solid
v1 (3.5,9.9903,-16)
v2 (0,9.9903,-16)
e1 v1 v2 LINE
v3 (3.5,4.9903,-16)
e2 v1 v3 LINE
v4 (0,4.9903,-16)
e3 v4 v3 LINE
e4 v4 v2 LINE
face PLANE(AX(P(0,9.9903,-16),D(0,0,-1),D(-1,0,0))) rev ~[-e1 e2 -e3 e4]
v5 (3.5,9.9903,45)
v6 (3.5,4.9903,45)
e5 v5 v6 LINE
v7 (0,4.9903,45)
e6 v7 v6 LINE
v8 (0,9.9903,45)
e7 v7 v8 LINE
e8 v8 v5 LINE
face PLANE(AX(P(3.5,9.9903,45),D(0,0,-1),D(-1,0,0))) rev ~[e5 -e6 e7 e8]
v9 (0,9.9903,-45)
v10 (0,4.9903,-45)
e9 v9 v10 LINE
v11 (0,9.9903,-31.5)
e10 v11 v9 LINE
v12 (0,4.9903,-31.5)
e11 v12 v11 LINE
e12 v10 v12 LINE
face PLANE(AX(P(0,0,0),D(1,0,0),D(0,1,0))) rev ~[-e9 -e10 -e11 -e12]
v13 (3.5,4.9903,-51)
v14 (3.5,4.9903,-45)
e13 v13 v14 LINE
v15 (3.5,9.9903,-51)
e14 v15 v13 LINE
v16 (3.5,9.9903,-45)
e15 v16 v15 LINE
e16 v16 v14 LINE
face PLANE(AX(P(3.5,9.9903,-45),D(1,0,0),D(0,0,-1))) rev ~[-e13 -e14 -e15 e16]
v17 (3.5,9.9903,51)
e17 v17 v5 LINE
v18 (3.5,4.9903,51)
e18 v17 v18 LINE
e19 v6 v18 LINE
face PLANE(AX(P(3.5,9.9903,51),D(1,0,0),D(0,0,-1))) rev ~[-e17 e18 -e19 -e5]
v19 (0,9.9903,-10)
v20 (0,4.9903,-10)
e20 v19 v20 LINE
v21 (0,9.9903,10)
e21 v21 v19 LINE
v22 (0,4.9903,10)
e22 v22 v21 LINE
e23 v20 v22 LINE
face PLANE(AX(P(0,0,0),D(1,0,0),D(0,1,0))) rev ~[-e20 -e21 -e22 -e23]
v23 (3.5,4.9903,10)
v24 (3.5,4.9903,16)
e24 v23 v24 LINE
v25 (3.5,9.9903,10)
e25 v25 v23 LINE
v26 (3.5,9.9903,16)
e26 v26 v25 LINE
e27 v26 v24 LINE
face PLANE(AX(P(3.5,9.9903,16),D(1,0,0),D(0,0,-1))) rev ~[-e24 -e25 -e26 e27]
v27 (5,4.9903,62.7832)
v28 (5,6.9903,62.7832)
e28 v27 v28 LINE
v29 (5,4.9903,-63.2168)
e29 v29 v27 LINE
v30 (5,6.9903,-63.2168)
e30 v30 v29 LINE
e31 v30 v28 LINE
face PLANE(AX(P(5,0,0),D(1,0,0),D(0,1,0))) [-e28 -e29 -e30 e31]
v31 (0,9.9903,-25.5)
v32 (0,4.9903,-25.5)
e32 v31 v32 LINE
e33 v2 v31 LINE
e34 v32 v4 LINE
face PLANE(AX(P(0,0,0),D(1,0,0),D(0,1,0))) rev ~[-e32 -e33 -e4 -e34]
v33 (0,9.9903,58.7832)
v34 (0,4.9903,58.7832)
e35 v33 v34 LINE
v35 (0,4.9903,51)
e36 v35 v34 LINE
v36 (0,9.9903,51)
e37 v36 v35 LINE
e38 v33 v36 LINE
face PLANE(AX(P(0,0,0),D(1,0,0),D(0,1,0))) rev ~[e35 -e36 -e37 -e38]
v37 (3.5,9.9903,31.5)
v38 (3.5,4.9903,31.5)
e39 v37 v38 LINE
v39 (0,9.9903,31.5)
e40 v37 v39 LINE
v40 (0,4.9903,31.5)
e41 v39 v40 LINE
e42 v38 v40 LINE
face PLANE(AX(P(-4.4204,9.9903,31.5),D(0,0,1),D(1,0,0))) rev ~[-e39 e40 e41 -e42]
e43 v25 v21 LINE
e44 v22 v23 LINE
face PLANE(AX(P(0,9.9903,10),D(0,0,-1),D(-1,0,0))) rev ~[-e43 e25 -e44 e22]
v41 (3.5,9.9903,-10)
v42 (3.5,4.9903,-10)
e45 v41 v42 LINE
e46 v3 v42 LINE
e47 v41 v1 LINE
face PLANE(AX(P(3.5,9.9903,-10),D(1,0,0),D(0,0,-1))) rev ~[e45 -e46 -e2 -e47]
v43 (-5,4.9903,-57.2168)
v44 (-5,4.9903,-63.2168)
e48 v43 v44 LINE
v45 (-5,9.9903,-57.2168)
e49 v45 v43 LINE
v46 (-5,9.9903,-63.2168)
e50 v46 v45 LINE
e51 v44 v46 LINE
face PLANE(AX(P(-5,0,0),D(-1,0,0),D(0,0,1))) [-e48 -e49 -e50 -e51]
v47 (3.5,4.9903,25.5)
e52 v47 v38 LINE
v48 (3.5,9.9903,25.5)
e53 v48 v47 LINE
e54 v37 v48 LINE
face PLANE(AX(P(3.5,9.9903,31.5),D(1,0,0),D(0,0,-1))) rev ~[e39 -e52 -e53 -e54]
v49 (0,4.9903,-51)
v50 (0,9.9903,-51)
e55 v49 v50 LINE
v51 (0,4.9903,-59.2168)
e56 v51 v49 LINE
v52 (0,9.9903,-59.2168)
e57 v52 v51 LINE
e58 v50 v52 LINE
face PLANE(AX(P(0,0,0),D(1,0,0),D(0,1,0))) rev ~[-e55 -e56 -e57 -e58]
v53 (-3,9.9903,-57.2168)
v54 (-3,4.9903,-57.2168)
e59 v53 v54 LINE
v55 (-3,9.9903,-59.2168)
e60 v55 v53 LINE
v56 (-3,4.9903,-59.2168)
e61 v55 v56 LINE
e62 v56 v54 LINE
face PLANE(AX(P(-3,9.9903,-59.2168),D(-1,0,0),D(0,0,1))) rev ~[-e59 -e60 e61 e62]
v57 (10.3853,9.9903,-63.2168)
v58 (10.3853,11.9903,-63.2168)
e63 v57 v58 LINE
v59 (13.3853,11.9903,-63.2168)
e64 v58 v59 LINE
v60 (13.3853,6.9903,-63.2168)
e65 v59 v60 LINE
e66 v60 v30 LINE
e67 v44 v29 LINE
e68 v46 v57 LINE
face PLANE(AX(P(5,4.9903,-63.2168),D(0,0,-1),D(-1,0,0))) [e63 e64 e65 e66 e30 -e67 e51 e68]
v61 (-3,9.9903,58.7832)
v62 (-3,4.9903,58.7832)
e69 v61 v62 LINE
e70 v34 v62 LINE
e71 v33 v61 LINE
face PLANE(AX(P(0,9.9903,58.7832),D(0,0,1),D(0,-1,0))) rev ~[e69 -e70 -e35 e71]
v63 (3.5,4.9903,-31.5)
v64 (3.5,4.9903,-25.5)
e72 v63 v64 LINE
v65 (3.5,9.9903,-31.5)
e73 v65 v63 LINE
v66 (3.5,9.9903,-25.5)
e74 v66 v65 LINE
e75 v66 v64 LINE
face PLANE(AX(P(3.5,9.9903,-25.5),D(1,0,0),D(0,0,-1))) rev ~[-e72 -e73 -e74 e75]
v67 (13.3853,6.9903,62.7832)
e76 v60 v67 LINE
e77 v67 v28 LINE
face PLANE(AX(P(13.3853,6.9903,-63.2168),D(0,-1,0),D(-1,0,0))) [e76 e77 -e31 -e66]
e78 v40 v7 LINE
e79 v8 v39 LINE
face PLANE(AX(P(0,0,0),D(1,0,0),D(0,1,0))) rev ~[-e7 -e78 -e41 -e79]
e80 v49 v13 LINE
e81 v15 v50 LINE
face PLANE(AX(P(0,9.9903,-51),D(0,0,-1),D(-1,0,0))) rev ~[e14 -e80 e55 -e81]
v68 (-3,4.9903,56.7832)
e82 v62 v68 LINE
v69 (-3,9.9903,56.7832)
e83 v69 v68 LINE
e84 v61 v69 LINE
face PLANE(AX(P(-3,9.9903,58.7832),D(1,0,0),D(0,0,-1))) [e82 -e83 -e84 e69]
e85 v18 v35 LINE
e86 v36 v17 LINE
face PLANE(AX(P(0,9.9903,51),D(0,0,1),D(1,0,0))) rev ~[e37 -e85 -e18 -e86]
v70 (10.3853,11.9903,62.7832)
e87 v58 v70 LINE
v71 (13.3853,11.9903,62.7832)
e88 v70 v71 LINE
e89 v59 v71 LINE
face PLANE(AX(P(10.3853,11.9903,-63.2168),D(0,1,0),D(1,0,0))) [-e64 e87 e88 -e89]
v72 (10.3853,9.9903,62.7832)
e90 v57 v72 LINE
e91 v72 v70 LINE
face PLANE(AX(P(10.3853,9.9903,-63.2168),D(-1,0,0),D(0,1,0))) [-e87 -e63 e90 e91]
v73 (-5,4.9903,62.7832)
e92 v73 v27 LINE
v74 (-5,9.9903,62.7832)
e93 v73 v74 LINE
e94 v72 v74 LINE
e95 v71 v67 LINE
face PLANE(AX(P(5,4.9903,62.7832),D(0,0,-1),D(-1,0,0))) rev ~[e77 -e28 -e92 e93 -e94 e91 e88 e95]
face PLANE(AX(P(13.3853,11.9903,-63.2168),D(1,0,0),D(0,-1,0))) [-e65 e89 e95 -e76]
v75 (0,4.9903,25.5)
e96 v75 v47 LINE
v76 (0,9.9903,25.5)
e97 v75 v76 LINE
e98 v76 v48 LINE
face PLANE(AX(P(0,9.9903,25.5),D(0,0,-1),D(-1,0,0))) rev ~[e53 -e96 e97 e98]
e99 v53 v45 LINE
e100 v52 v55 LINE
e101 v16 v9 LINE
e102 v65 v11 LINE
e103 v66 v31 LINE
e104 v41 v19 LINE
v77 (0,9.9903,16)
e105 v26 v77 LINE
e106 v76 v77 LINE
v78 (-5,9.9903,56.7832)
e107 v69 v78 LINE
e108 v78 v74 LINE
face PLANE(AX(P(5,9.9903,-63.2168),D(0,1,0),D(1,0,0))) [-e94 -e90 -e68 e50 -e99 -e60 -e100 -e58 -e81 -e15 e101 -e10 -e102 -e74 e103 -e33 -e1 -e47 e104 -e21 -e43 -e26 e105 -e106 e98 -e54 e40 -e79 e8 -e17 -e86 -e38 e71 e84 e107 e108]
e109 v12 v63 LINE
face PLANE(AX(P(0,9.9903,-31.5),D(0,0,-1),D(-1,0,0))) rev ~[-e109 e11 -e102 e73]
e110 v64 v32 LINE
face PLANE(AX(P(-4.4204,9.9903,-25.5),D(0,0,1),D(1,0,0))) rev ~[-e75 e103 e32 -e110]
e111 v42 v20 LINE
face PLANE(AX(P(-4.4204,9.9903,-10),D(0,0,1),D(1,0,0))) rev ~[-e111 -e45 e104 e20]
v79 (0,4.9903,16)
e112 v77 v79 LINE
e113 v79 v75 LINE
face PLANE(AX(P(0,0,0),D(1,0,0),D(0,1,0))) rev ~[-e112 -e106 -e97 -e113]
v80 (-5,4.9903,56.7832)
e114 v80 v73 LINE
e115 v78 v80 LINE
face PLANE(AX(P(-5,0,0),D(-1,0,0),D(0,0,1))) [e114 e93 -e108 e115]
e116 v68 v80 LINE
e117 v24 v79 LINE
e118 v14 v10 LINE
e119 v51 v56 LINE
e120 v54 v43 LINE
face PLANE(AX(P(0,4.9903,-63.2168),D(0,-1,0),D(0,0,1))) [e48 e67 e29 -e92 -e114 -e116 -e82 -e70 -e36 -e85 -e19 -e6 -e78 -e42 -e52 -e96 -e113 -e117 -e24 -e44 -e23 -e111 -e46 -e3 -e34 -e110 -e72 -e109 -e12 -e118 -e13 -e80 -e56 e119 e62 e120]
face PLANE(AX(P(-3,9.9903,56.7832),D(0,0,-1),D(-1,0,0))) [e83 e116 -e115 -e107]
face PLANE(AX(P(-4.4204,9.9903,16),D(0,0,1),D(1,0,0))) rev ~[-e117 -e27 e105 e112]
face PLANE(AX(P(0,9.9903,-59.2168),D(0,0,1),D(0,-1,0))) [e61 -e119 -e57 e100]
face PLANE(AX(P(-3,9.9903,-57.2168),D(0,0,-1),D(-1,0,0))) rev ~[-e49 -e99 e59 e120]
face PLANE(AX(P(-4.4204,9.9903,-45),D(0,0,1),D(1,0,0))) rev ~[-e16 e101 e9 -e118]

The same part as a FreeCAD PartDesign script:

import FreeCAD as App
import Part
import Sketcher

V = App.Vector

doc = App.newDocument("Part")
body = doc.addObject("PartDesign::Body", "Body")

sketch1 = body.newObject("Sketcher::SketchObject", "Sketch")
sketch1.AttachmentSupport = (doc.getObject("YZ_Plane"), [""])
sketch1.MapMode = "FlatFace"
sketch1.addGeometry([
    Part.LineSegment(V(10, 62.8, 0), V(5, 62.8, 0)),
    Part.LineSegment(V(5, 62.8, 0), V(5, -63.2, 0)),
    Part.LineSegment(V(5, -63.2, 0), V(10, -63.2, 0)),
    Part.LineSegment(V(10, -63.2, 0), V(10, 62.8, 0)),
], False)
sketch1.addConstraint([
    Sketcher.Constraint("Coincident", 0, 2, 1, 1),
    Sketcher.Constraint("Coincident", 1, 2, 2, 1),
    Sketcher.Constraint("Coincident", 2, 2, 3, 1),
    Sketcher.Constraint("Coincident", 3, 2, 0, 1),
    Sketcher.Constraint("Horizontal", 0),
    Sketcher.Constraint("Vertical", 1),
    Sketcher.Constraint("Horizontal", 2),
    Sketcher.Constraint("Vertical", 3),
    Sketcher.Constraint("DistanceX", 0, 2, 0, 1, 5.0),
    Sketcher.Constraint("DistanceY", 1, 2, 1, 1, 126.0),
    Sketcher.Constraint("DistanceX", -1, 1, 0, 2, 4.9903),
    Sketcher.Constraint("DistanceY", -1, 1, 0, 2, 62.7832),
])
pad1 = body.newObject("PartDesign::Pad", "Pad")
pad1.Profile = sketch1
pad1.Length = 5

sketch2 = body.newObject("Sketcher::SketchObject", "Sketch001")
sketch2.AttachmentSupport = (doc.getObject("YZ_Plane"), [""])
sketch2.MapMode = "FlatFace"
sketch2.addGeometry([
    Part.LineSegment(V(10, -59.2, 0), V(10, -63.2, 0)),
    Part.LineSegment(V(10, -63.2, 0), V(5, -63.2, 0)),
    Part.LineSegment(V(5, -63.2, 0), V(5, -59.2, 0)),
    Part.LineSegment(V(5, -59.2, 0), V(10, -59.2, 0)),
    Part.LineSegment(V(10, 62.8, 0), V(10, 58.8, 0)),
    Part.LineSegment(V(10, 58.8, 0), V(5, 58.8, 0)),
    Part.LineSegment(V(5, 58.8, 0), V(5, 62.8, 0)),
    Part.LineSegment(V(5, 62.8, 0), V(10, 62.8, 0)),
], False)
sketch2.addConstraint([
    Sketcher.Constraint("Coincident", 0, 2, 1, 1),
    Sketcher.Constraint("Coincident", 1, 2, 2, 1),
    Sketcher.Constraint("Coincident", 2, 2, 3, 1),
    Sketcher.Constraint("Coincident", 3, 2, 0, 1),
    Sketcher.Constraint("Coincident", 4, 2, 5, 1),
    Sketcher.Constraint("Coincident", 5, 2, 6, 1),
    Sketcher.Constraint("Coincident", 6, 2, 7, 1),
    Sketcher.Constraint("Coincident", 7, 2, 4, 1),
    Sketcher.Constraint("Vertical", 0),
    Sketcher.Constraint("Horizontal", 1),
    Sketcher.Constraint("Vertical", 2),
    Sketcher.Constraint("Horizontal", 3),
    Sketcher.Constraint("Vertical", 4),
    Sketcher.Constraint("Horizontal", 5),
    Sketcher.Constraint("Vertical", 6),
    Sketcher.Constraint("Horizontal", 7),
    Sketcher.Constraint("Vertical", 3, 2, 4, 2),
    Sketcher.Constraint("Vertical", 2, 2, 5, 2),
    Sketcher.Constraint("Equal", 2, 4),
    Sketcher.Constraint("DistanceY", 0, 2, 0, 1, 4.0),
    Sketcher.Constraint("DistanceX", 1, 2, 1, 1, 5.0),
    Sketcher.Constraint("DistanceY", 3, 2, 4, 2, 118.0),
    Sketcher.Constraint("DistanceX", -1, 1, 0, 2, 9.9903),
    Sketcher.Constraint("DistanceY", 0, 2, -1, 1, 63.2168),
])
pad2 = body.newObject("PartDesign::Pad", "Pad001")
pad2.Profile = sketch2
pad2.Length = 5
pad2.Reversed = True

sketch3 = body.newObject("Sketcher::SketchObject", "Sketch002")
sketch3.AttachmentSupport = (doc.getObject("XZ_Plane"), [""])
sketch3.MapMode = "FlatFace"
sketch3.AttachmentOffset = App.Placement(V(0, 0, -9.9903), App.Rotation())
sketch3.addGeometry([
    Part.LineSegment(V(-5, 56.8, 0), V(-5, 58.8, 0)),
    Part.LineSegment(V(-5, 58.8, 0), V(-3, 58.8, 0)),
    Part.LineSegment(V(-3, 58.8, 0), V(-3, 56.8, 0)),
    Part.LineSegment(V(-3, 56.8, 0), V(-5, 56.8, 0)),
    Part.LineSegment(V(-3, -59.2, 0), V(-5, -59.2, 0)),
    Part.LineSegment(V(-5, -59.2, 0), V(-5, -57.2, 0)),
    Part.LineSegment(V(-5, -57.2, 0), V(-3, -57.2, 0)),
    Part.LineSegment(V(-3, -57.2, 0), V(-3, -59.2, 0)),
], False)
sketch3.addConstraint([
    Sketcher.Constraint("Coincident", 0, 2, 1, 1),
    Sketcher.Constraint("Coincident", 1, 2, 2, 1),
    Sketcher.Constraint("Coincident", 2, 2, 3, 1),
    Sketcher.Constraint("Coincident", 3, 2, 0, 1),
    Sketcher.Constraint("Coincident", 4, 2, 5, 1),
    Sketcher.Constraint("Coincident", 5, 2, 6, 1),
    Sketcher.Constraint("Coincident", 6, 2, 7, 1),
    Sketcher.Constraint("Coincident", 7, 2, 4, 1),
    Sketcher.Constraint("Vertical", 0),
    Sketcher.Constraint("Horizontal", 1),
    Sketcher.Constraint("Vertical", 2),
    Sketcher.Constraint("Horizontal", 3),
    Sketcher.Constraint("Horizontal", 4),
    Sketcher.Constraint("Vertical", 5),
    Sketcher.Constraint("Horizontal", 6),
    Sketcher.Constraint("Vertical", 7),
    Sketcher.Constraint("Vertical", 3, 2, 4, 2),
    Sketcher.Constraint("Vertical", 2, 2, 6, 2),
    Sketcher.Constraint("Equal", 6, 0),
    Sketcher.Constraint("Equal", 2, 5),
    Sketcher.Constraint("DistanceX", 1, 1, 1, 2, 2.0),
    Sketcher.Constraint("DistanceX", 0, 2, -1, 1, 5.0),
    Sketcher.Constraint("DistanceY", 4, 2, 3, 2, 116.0),
    Sketcher.Constraint("DistanceY", -1, 1, 0, 2, 58.7832),
])
pad3 = body.newObject("PartDesign::Pad", "Pad002")
pad3.Profile = sketch3
pad3.Length = 5

sketch4 = body.newObject("Sketcher::SketchObject", "Sketch003")
sketch4.AttachmentSupport = (doc.getObject("XY_Plane"), [""])
sketch4.MapMode = "FlatFace"
sketch4.AttachmentOffset = App.Placement(V(0, 0, -63.2168), App.Rotation())
sketch4.addGeometry([
    Part.LineSegment(V(5, 7, 0), V(5, 10, 0)),
    Part.LineSegment(V(5, 10, 0), V(10.4, 10, 0)),
    Part.LineSegment(V(10.4, 10, 0), V(10.4, 12, 0)),
    Part.LineSegment(V(10.4, 12, 0), V(13.4, 12, 0)),
    Part.LineSegment(V(13.4, 12, 0), V(13.4, 7, 0)),
    Part.LineSegment(V(13.4, 7, 0), V(5, 7, 0)),
], False)
sketch4.addConstraint([
    Sketcher.Constraint("Coincident", 0, 2, 1, 1),
    Sketcher.Constraint("Coincident", 1, 2, 2, 1),
    Sketcher.Constraint("Coincident", 2, 2, 3, 1),
    Sketcher.Constraint("Coincident", 3, 2, 4, 1),
    Sketcher.Constraint("Coincident", 4, 2, 5, 1),
    Sketcher.Constraint("Coincident", 5, 2, 0, 1),
    Sketcher.Constraint("Vertical", 0),
    Sketcher.Constraint("Horizontal", 1),
    Sketcher.Constraint("Vertical", 2),
    Sketcher.Constraint("Horizontal", 3),
    Sketcher.Constraint("Vertical", 4),
    Sketcher.Constraint("Horizontal", 5),
    Sketcher.Constraint("Equal", 3, 0),
    Sketcher.Constraint("DistanceX", 3, 1, 3, 2, 3.0),
    Sketcher.Constraint("DistanceY", 2, 1, 2, 2, 2.0),
    Sketcher.Constraint("DistanceX", -1, 1, 0, 2, 5.0),
    Sketcher.Constraint("DistanceX", 1, 1, 1, 2, 5.3853),
    Sketcher.Constraint("DistanceY", -1, 1, 0, 2, 9.9903),
])
pad4 = body.newObject("PartDesign::Pad", "Pad003")
pad4.Profile = sketch4
pad4.Length = 126

sketch5 = body.newObject("Sketcher::SketchObject", "Sketch004")
sketch5.AttachmentSupport = (doc.getObject("XZ_Plane"), [""])
sketch5.MapMode = "FlatFace"
sketch5.AttachmentOffset = App.Placement(V(0, 0, -9.9903), App.Rotation())
sketch5.addGeometry([
    Part.LineSegment(V(-4, 26, 0), V(-4, 32, 0)),
    Part.LineSegment(V(-4, 32, 0), V(4, 32, 0)),
    Part.LineSegment(V(4, 32, 0), V(4, 26, 0)),
    Part.LineSegment(V(4, 26, 0), V(-4, 26, 0)),
    Part.LineSegment(V(-4, -45, 0), V(4, -45, 0)),
    Part.LineSegment(V(4, -45, 0), V(4, -51, 0)),
    Part.LineSegment(V(4, -51, 0), V(-4, -51, 0)),
    Part.LineSegment(V(-4, -51, 0), V(-4, -45, 0)),
    Part.LineSegment(V(-4, -26, 0), V(4, -26, 0)),
    Part.LineSegment(V(4, -26, 0), V(4, -32, 0)),
    Part.LineSegment(V(4, -32, 0), V(-4, -32, 0)),
    Part.LineSegment(V(-4, -32, 0), V(-4, -26, 0)),
    Part.LineSegment(V(-4, -10, 0), V(4, -10, 0)),
    Part.LineSegment(V(4, -10, 0), V(4, -16, 0)),
    Part.LineSegment(V(4, -16, 0), V(-4, -16, 0)),
    Part.LineSegment(V(-4, -16, 0), V(-4, -10, 0)),
    Part.LineSegment(V(-4, 16, 0), V(4, 16, 0)),
    Part.LineSegment(V(4, 16, 0), V(4, 10, 0)),
    Part.LineSegment(V(4, 10, 0), V(-4, 10, 0)),
    Part.LineSegment(V(-4, 10, 0), V(-4, 16, 0)),
    Part.LineSegment(V(4, 45, 0), V(-4, 45, 0)),
    Part.LineSegment(V(-4, 45, 0), V(-4, 51, 0)),
    Part.LineSegment(V(-4, 51, 0), V(4, 51, 0)),
    Part.LineSegment(V(4, 51, 0), V(4, 45, 0)),
], False)
sketch5.addConstraint([
    Sketcher.Constraint("Coincident", 0, 2, 1, 1),
    Sketcher.Constraint("Coincident", 1, 2, 2, 1),
    Sketcher.Constraint("Coincident", 2, 2, 3, 1),
    Sketcher.Constraint("Coincident", 3, 2, 0, 1),
    Sketcher.Constraint("Coincident", 4, 2, 5, 1),
    Sketcher.Constraint("Coincident", 5, 2, 6, 1),
    Sketcher.Constraint("Coincident", 6, 2, 7, 1),
    Sketcher.Constraint("Coincident", 7, 2, 4, 1),
    Sketcher.Constraint("Coincident", 8, 2, 9, 1),
    Sketcher.Constraint("Coincident", 9, 2, 10, 1),
    Sketcher.Constraint("Coincident", 10, 2, 11, 1),
    Sketcher.Constraint("Coincident", 11, 2, 8, 1),
    Sketcher.Constraint("Coincident", 12, 2, 13, 1),
    Sketcher.Constraint("Coincident", 13, 2, 14, 1),
    Sketcher.Constraint("Coincident", 14, 2, 15, 1),
    Sketcher.Constraint("Coincident", 15, 2, 12, 1),
    Sketcher.Constraint("Coincident", 16, 2, 17, 1),
    Sketcher.Constraint("Coincident", 17, 2, 18, 1),
    Sketcher.Constraint("Coincident", 18, 2, 19, 1),
    Sketcher.Constraint("Coincident", 19, 2, 16, 1),
    Sketcher.Constraint("Coincident", 20, 2, 21, 1),
    Sketcher.Constraint("Coincident", 21, 2, 22, 1),
    Sketcher.Constraint("Coincident", 22, 2, 23, 1),
    Sketcher.Constraint("Coincident", 23, 2, 20, 1),
    Sketcher.Constraint("Vertical", 0),
    Sketcher.Constraint("Horizontal", 1),
    Sketcher.Constraint("Vertical", 2),
    Sketcher.Constraint("Horizontal", 3),
    Sketcher.Constraint("Horizontal", 4),
    Sketcher.Constraint("Vertical", 5),
    Sketcher.Constraint("Horizontal", 6),
    Sketcher.Constraint("Vertical", 7),
    Sketcher.Constraint("Horizontal", 8),
    Sketcher.Constraint("Vertical", 9),
    Sketcher.Constraint("Horizontal", 10),
    Sketcher.Constraint("Vertical", 11),
    Sketcher.Constraint("Horizontal", 12),
    Sketcher.Constraint("Vertical", 13),
    Sketcher.Constraint("Horizontal", 14),
    Sketcher.Constraint("Vertical", 15),
    Sketcher.Constraint("Horizontal", 16),
    Sketcher.Constraint("Vertical", 17),
    Sketcher.Constraint("Horizontal", 18),
    Sketcher.Constraint("Vertical", 19),
    Sketcher.Constraint("Horizontal", 20),
    Sketcher.Constraint("Vertical", 21),
    Sketcher.Constraint("Horizontal", 22),
    Sketcher.Constraint("Vertical", 23),
    Sketcher.Constraint("Symmetric", 2, 2, 8, 2, -1),
    Sketcher.Constraint("Symmetric", 0, 2, 10, 2, -1),
    Sketcher.Constraint("Symmetric", 13, 2, 16, 2, -1),
    Sketcher.Constraint("Symmetric", 15, 2, 18, 2, -1),
    Sketcher.Constraint("Symmetric", 7, 2, 20, 2, -1),
    Sketcher.Constraint("Symmetric", 5, 2, 22, 2, -1),
    Sketcher.Constraint("Vertical", 2, 2, 4, 2),
    Sketcher.Constraint("Vertical", 3, 2, 6, 2),
    Sketcher.Constraint("Vertical", 9, 2, 12, 2),
    Sketcher.Constraint("Vertical", 11, 2, 14, 2),
    Sketcher.Constraint("Equal", 2, 5),
    Sketcher.Constraint("Equal", 11, 13),
    Sketcher.Constraint("DistanceY", 0, 1, 0, 2, 6.0),
    Sketcher.Constraint("DistanceY", 4, 2, -1, 1, 45.0),
    Sketcher.Constraint("DistanceY", 12, 2, -1, 1, 10.0),
    Sketcher.Constraint("DistanceX", -1, 1, 1, 2, 3.5),
    Sketcher.Constraint("DistanceY", -1, 1, 2, 2, 25.5),
    Sketcher.Constraint("DistanceX", 1, 1, 1, 2, 7.9204),
])
pocket1 = body.newObject("PartDesign::Pocket", "Pocket")
pocket1.Profile = sketch5
pocket1.Length = 10
pocket1.Reversed = True

doc.recompute()
